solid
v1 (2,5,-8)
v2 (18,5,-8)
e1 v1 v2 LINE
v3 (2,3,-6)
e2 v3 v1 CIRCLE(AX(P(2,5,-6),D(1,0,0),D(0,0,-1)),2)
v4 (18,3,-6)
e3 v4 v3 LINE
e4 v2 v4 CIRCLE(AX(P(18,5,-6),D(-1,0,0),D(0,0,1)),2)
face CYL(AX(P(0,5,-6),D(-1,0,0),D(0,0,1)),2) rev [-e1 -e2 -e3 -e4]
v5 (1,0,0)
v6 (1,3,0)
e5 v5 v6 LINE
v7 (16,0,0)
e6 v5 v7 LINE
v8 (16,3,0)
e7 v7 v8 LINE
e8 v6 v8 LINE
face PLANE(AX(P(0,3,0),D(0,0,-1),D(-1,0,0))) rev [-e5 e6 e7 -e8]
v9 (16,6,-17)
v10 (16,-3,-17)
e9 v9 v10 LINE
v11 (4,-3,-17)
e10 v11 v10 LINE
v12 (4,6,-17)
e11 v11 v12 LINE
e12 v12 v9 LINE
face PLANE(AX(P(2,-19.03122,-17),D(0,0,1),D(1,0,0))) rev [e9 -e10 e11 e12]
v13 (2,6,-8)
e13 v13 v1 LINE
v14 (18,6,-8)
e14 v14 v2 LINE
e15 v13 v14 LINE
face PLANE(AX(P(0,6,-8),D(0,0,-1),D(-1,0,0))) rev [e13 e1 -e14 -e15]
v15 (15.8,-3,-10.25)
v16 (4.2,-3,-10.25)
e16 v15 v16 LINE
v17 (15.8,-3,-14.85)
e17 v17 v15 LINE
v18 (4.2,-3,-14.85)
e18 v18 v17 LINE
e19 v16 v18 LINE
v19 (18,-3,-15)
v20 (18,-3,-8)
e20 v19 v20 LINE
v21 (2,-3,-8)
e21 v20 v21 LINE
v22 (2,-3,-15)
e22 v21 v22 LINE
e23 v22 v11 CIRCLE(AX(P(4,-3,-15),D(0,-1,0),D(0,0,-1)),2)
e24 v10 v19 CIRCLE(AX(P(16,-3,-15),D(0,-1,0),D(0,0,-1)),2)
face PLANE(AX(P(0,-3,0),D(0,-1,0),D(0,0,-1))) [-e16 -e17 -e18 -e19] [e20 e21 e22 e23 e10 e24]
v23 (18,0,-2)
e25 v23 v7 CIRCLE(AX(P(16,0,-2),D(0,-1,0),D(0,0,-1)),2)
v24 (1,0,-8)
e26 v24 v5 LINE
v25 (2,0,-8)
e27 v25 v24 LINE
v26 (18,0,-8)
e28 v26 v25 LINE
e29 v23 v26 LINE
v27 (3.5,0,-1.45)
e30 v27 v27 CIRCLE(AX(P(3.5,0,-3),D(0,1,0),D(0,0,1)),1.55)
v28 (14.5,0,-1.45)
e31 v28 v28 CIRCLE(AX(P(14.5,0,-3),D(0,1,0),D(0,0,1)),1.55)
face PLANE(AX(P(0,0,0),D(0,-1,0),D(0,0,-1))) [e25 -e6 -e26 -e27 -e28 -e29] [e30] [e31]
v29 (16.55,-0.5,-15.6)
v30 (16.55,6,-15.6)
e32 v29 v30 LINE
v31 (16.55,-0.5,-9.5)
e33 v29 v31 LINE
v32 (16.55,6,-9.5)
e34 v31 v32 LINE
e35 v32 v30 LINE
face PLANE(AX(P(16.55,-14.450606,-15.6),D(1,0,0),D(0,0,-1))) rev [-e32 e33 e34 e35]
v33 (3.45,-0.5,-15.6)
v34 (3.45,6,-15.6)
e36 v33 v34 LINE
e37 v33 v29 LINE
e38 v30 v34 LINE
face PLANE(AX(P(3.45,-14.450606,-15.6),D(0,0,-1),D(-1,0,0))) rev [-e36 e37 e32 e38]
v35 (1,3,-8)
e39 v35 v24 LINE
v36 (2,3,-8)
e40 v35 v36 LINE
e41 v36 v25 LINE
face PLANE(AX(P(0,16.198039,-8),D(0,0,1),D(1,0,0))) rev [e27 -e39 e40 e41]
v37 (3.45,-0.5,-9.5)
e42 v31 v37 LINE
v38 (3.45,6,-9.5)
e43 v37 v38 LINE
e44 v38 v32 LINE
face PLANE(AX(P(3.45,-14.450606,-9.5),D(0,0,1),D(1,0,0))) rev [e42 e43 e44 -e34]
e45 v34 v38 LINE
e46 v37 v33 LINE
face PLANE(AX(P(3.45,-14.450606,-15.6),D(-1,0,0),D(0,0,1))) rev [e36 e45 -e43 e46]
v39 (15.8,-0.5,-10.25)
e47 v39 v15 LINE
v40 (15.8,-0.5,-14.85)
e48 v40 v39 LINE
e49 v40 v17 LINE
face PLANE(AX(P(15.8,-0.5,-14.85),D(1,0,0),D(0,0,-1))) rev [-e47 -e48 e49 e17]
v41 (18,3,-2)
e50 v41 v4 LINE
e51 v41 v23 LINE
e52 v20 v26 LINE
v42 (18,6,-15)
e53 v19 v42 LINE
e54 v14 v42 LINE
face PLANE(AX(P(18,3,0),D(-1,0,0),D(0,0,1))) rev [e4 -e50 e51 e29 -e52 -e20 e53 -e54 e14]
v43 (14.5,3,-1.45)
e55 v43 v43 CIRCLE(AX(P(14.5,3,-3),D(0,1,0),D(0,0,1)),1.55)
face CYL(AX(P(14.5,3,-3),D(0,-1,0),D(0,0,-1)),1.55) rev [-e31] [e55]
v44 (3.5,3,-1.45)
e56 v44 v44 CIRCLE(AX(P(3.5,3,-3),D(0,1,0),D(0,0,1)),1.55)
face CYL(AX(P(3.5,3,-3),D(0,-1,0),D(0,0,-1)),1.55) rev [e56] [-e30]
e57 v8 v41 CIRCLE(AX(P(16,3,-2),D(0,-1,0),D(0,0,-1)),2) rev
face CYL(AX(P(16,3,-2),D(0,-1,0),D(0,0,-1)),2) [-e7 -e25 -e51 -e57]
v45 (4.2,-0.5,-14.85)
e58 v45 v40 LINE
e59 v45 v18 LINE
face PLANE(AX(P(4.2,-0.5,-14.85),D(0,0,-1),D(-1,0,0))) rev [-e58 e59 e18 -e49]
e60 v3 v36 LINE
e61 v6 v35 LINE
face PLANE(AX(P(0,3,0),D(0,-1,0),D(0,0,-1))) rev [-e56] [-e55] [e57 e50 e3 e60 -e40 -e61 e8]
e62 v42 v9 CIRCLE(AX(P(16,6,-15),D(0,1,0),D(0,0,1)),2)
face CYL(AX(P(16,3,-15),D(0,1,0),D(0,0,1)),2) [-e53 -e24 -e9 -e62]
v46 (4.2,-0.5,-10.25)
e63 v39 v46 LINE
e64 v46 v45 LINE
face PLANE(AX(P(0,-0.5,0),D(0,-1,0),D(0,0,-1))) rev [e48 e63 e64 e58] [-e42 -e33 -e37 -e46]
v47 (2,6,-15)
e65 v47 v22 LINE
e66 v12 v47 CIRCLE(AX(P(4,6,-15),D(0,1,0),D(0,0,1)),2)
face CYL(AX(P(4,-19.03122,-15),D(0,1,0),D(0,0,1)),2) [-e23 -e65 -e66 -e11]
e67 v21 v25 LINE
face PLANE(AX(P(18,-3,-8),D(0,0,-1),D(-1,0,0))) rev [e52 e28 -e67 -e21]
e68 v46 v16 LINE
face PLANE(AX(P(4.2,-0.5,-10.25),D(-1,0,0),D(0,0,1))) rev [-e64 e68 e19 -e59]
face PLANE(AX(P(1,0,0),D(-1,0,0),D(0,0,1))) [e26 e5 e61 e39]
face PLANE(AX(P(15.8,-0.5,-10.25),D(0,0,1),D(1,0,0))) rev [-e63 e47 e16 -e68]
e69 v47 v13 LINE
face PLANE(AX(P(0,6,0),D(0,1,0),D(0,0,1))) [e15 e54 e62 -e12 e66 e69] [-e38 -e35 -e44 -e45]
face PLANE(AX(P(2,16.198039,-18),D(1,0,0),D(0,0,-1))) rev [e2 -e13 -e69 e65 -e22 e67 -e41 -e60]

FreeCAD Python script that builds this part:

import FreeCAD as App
import Part
import Sketcher

V = App.Vector
Q = App.Units.Quantity


def edges_at(feature, points):
    """Names of the edges that pass closest to the given points."""
    edges = feature.Shape.Edges
    near = lambda p: min(range(len(edges)), key=lambda i: edges[i].distToShape(Part.Vertex(*p))[0])
    return sorted({f"Edge{near(p) + 1}" for p in points})

doc = App.newDocument("Part")
body = doc.addObject("PartDesign::Body", "Body")

# Sketch on XZ plane
sketch1 = body.newObject("Sketcher::SketchObject", "Sketch")
sketch1.AttachmentSupport = (doc.getObject("XZ_Plane"), [""])
sketch1.MapMode = "FlatFace"
sketch1.addGeometry(Part.LineSegment(V(0, -18, 0), V(0, 0, 0)), False)
sketch1.addGeometry(Part.LineSegment(V(0, 0, 0), V(18, 0, 0)), False)
sketch1.addGeometry(Part.LineSegment(V(18, 0, 0), V(18, -18, 0)), False)
sketch1.addGeometry(Part.LineSegment(V(18, -18, 0), V(0, -18, 0)), False)
sketch1.addGeometry(Part.Circle(V(3.5, -3, 0), V(0, 0, 1), 1.55), False)
sketch1.addGeometry(Part.Circle(V(14.5, -3, 0), V(0, 0, 1), 1.55), False)
sketch1.addConstraint(Sketcher.Constraint("Coincident", 0, 2, 1, 1))
sketch1.addConstraint(Sketcher.Constraint("Coincident", 1, 2, 2, 1))
sketch1.addConstraint(Sketcher.Constraint("Coincident", 2, 2, 3, 1))
sketch1.addConstraint(Sketcher.Constraint("Coincident", 3, 2, 0, 1))
sketch1.addConstraint(Sketcher.Constraint("Vertical", 0))
sketch1.addConstraint(Sketcher.Constraint("Horizontal", 1))
sketch1.addConstraint(Sketcher.Constraint("Vertical", 2))
sketch1.addConstraint(Sketcher.Constraint("Horizontal", 3))
sketch1.addConstraint(Sketcher.Constraint("Coincident", 0, 2, -1, 1))
sketch1.addConstraint(Sketcher.Constraint("Equal", 4, 5))
sketch1.addConstraint(Sketcher.Constraint("Horizontal", 4, 3, 5, 3))
sketch1.addConstraint(Sketcher.Constraint("Equal", 3, 0))
sketch1.addConstraint(Sketcher.Constraint("Diameter", 4, Q("3.1 mm")))
sketch1.addConstraint(Sketcher.Constraint("DistanceX", 1, 1, 1, 2, Q("18 mm")))
sketch1.addConstraint(Sketcher.Constraint("DistanceY", 4, 3, -1, 1, Q("3 mm")))
sketch1.addConstraint(Sketcher.Constraint("DistanceX", 4, 3, 5, 3, Q("11 mm")))
sketch1.addConstraint(Sketcher.Constraint("DistanceX", -1, 1, 4, 3, Q("3.5 mm")))
pad1 = body.newObject("PartDesign::Pad", "Pad")
pad1.Profile = sketch1
pad1.Length = 3
pad1.Reversed = True

# Sketch on XZ plane
sketch2 = body.newObject("Sketcher::SketchObject", "Sketch001")
sketch2.AttachmentSupport = (doc.getObject("XZ_Plane"), [""])
sketch2.MapMode = "FlatFace"
sketch2.AttachmentOffset = App.Placement(V(0, 0, -3), App.Rotation())
sketch2.addGeometry(Part.LineSegment(V(0, -18, 0), V(0, -8, 0)), False)
sketch2.addGeometry(Part.LineSegment(V(0, -8, 0), V(18, -8, 0)), False)
sketch2.addGeometry(Part.LineSegment(V(18, -8, 0), V(18, -18, 0)), False)
sketch2.addGeometry(Part.LineSegment(V(18, -18, 0), V(0, -18, 0)), False)
sketch2.addConstraint(Sketcher.Constraint("Coincident", 0, 2, 1, 1))
sketch2.addConstraint(Sketcher.Constraint("Coincident", 1, 2, 2, 1))
sketch2.addConstraint(Sketcher.Constraint("Coincident", 2, 2, 3, 1))
sketch2.addConstraint(Sketcher.Constraint("Coincident", 3, 2, 0, 1))
sketch2.addConstraint(Sketcher.Constraint("Vertical", 0))
sketch2.addConstraint(Sketcher.Constraint("Horizontal", 1))
sketch2.addConstraint(Sketcher.Constraint("Vertical", 2))
sketch2.addConstraint(Sketcher.Constraint("Horizontal", 3))
sketch2.addConstraint(Sketcher.Constraint("PointOnObject", 0, 2, -2))
sketch2.addConstraint(Sketcher.Constraint("DistanceX", 1, 1, 1, 2, Q("18 mm")))
sketch2.addConstraint(Sketcher.Constraint("DistanceY", 0, 1, 0, 2, Q("10 mm")))
sketch2.addConstraint(Sketcher.Constraint("DistanceY", 0, 2, -1, 1, Q("8 mm")))
pad2 = body.newObject("PartDesign::Pad", "Pad001")
pad2.Profile = sketch2
pad2.Length = 3
pad2.Reversed = True

# Sketch on XZ plane
sketch3 = body.newObject("Sketcher::SketchObject", "Sketch002")
sketch3.AttachmentSupport = (doc.getObject("XZ_Plane"), [""])
sketch3.MapMode = "FlatFace"
sketch3.addGeometry(Part.LineSegment(V(0, -8, 0), V(0, -18, 0)), False)
sketch3.addGeometry(Part.LineSegment(V(0, -18, 0), V(2, -18, 0)), False)
sketch3.addGeometry(Part.LineSegment(V(2, -18, 0), V(2, -8, 0)), False)
sketch3.addGeometry(Part.LineSegment(V(2, -8, 0), V(0, -8, 0)), False)
sketch3.addConstraint(Sketcher.Constraint("Coincident", 0, 2, 1, 1))
sketch3.addConstraint(Sketcher.Constraint("Coincident", 1, 2, 2, 1))
sketch3.addConstraint(Sketcher.Constraint("Coincident", 2, 2, 3, 1))
sketch3.addConstraint(Sketcher.Constraint("Coincident", 3, 2, 0, 1))
sketch3.addConstraint(Sketcher.Constraint("Vertical", 0))
sketch3.addConstraint(Sketcher.Constraint("Horizontal", 1))
sketch3.addConstraint(Sketcher.Constraint("Vertical", 2))
sketch3.addConstraint(Sketcher.Constraint("Horizontal", 3))
sketch3.addConstraint(Sketcher.Constraint("PointOnObject", 0, 2, -2))
sketch3.addConstraint(Sketcher.Constraint("DistanceX", 1, 1, 1, 2, Q("2 mm")))
sketch3.addConstraint(Sketcher.Constraint("DistanceY", 0, 2, 0, 1, Q("10 mm")))
sketch3.addConstraint(Sketcher.Constraint("DistanceY", 0, 2, -1, 1, Q("18 mm")))
pocket1 = body.newObject("PartDesign::Pocket", "Pocket")
pocket1.Profile = sketch3
pocket1.Length = 6

# Sketch on XZ plane
sketch4 = body.newObject("Sketcher::SketchObject", "Sketch003")
sketch4.AttachmentSupport = (doc.getObject("XZ_Plane"), [""])
sketch4.MapMode = "FlatFace"
sketch4.AttachmentOffset = App.Placement(V(0, 0, -6), App.Rotation())
sketch4.addGeometry(Part.LineSegment(V(3.45, -15.6, 0), V(3.45, -9.5, 0)), False)
sketch4.addGeometry(Part.LineSegment(V(3.45, -9.5, 0), V(16.55, -9.5, 0)), False)
sketch4.addGeometry(Part.LineSegment(V(16.55, -9.5, 0), V(16.55, -15.6, 0)), False)
sketch4.addGeometry(Part.LineSegment(V(16.55, -15.6, 0), V(3.45, -15.6, 0)), False)
sketch4.addConstraint(Sketcher.Constraint("Coincident", 0, 2, 1, 1))
sketch4.addConstraint(Sketcher.Constraint("Coincident", 1, 2, 2, 1))
sketch4.addConstraint(Sketcher.Constraint("Coincident", 2, 2, 3, 1))
sketch4.addConstraint(Sketcher.Constraint("Coincident", 3, 2, 0, 1))
sketch4.addConstraint(Sketcher.Constraint("Vertical", 0))
sketch4.addConstraint(Sketcher.Constraint("Horizontal", 1))
sketch4.addConstraint(Sketcher.Constraint("Vertical", 2))
sketch4.addConstraint(Sketcher.Constraint("Horizontal", 3))
sketch4.addConstraint(Sketcher.Constraint("DistanceX", 1, 1, 1, 2, Q("13.1 mm")))
sketch4.addConstraint(Sketcher.Constraint("DistanceY", 0, 1, 0, 2, Q("6.1 mm")))
sketch4.addConstraint(Sketcher.Constraint("DistanceY", 0, 2, -1, 1, Q("9.5 mm")))
sketch4.addConstraint(Sketcher.Constraint("DistanceX", -1, 1, 0, 2, Q("3.45 mm")))
pocket2 = body.newObject("PartDesign::Pocket", "Pocket001")
pocket2.Profile = sketch4
pocket2.Length = 6
pocket2.Reversed = True

# Sketch on XZ plane
sketch5 = body.newObject("Sketcher::SketchObject", "Sketch004")
sketch5.AttachmentSupport = (doc.getObject("XZ_Plane"), [""])
sketch5.MapMode = "FlatFace"
sketch5.addGeometry(Part.LineSegment(V(2, -8, 0), V(2, -18, 0)), False)
sketch5.addGeometry(Part.LineSegment(V(2, -18, 0), V(18, -18, 0)), False)
sketch5.addGeometry(Part.LineSegment(V(18, -18, 0), V(18, -8, 0)), False)
sketch5.addGeometry(Part.LineSegment(V(18, -8, 0), V(2, -8, 0)), False)
sketch5.addGeometry(Part.LineSegment(V(16.55, -15.6, 0), V(3.45, -15.6, 0)), False)
sketch5.addGeometry(Part.LineSegment(V(3.45, -15.6, 0), V(3.45, -9.5, 0)), False)
sketch5.addGeometry(Part.LineSegment(V(3.45, -9.5, 0), V(16.55, -9.5, 0)), False)
sketch5.addGeometry(Part.LineSegment(V(16.55, -9.5, 0), V(16.55, -15.6, 0)), False)
sketch5.addConstraint(Sketcher.Constraint("Coincident", 0, 2, 1, 1))
sketch5.addConstraint(Sketcher.Constraint("Coincident", 1, 2, 2, 1))
sketch5.addConstraint(Sketcher.Constraint("Coincident", 2, 2, 3, 1))
sketch5.addConstraint(Sketcher.Constraint("Coincident", 3, 2, 0, 1))
sketch5.addConstraint(Sketcher.Constraint("Coincident", 4, 2, 5, 1))
sketch5.addConstraint(Sketcher.Constraint("Coincident", 5, 2, 6, 1))
sketch5.addConstraint(Sketcher.Constraint("Coincident", 6, 2, 7, 1))
sketch5.addConstraint(Sketcher.Constraint("Coincident", 7, 2, 4, 1))
sketch5.addConstraint(Sketcher.Constraint("Vertical", 0))
sketch5.addConstraint(Sketcher.Constraint("Horizontal", 1))
sketch5.addConstraint(Sketcher.Constraint("Vertical", 2))
sketch5.addConstraint(Sketcher.Constraint("Horizontal", 3))
sketch5.addConstraint(Sketcher.Constraint("Horizontal", 4))
sketch5.addConstraint(Sketcher.Constraint("Vertical", 5))
sketch5.addConstraint(Sketcher.Constraint("Horizontal", 6))
sketch5.addConstraint(Sketcher.Constraint("Vertical", 7))
sketch5.addConstraint(Sketcher.Constraint("DistanceX", 1, 1, 1, 2, Q("16 mm")))
sketch5.addConstraint(Sketcher.Constraint("DistanceY", 0, 2, 0, 1, Q("10 mm")))
sketch5.addConstraint(Sketcher.Constraint("DistanceX", 4, 2, 4, 1, Q("13.1 mm")))
sketch5.addConstraint(Sketcher.Constraint("DistanceY", 5, 1, 5, 2, Q("6.1 mm")))
sketch5.addConstraint(Sketcher.Constraint("DistanceX", -1, 1, 0, 2, Q("2 mm")))
sketch5.addConstraint(Sketcher.Constraint("DistanceY", 0, 2, -1, 1, Q("18 mm")))
sketch5.addConstraint(Sketcher.Constraint("DistanceY", 4, 2, -1, 1, Q("15.6 mm")))
sketch5.addConstraint(Sketcher.Constraint("DistanceX", -1, 1, 4, 2, Q("3.45 mm")))
pad3 = body.newObject("PartDesign::Pad", "Pad002")
pad3.Profile = sketch5
pad3.Length = 3

# Sketch on XZ plane
sketch6 = body.newObject("Sketcher::SketchObject", "Sketch005")
sketch6.AttachmentSupport = (doc.getObject("XZ_Plane"), [""])
sketch6.MapMode = "FlatFace"
sketch6.AttachmentOffset = App.Placement(V(0, 0, 3), App.Rotation())
sketch6.addGeometry(Part.LineSegment(V(3.45, -9.5, 0), V(3.45, -15.6, 0)), False)
sketch6.addGeometry(Part.LineSegment(V(3.45, -15.6, 0), V(16.55, -15.6, 0)), False)
sketch6.addGeometry(Part.LineSegment(V(16.55, -15.6, 0), V(16.55, -9.5, 0)), False)
sketch6.addGeometry(Part.LineSegment(V(16.55, -9.5, 0), V(3.45, -9.5, 0)), False)
sketch6.addGeometry(Part.LineSegment(V(15.8, -14.85, 0), V(4.2, -14.85, 0)), False)
sketch6.addGeometry(Part.LineSegment(V(4.2, -14.85, 0), V(4.2, -10.25, 0)), False)
sketch6.addGeometry(Part.LineSegment(V(4.2, -10.25, 0), V(15.8, -10.25, 0)), False)
sketch6.addGeometry(Part.LineSegment(V(15.8, -10.25, 0), V(15.8, -14.85, 0)), False)
sketch6.addConstraint(Sketcher.Constraint("Coincident", 0, 2, 1, 1))
sketch6.addConstraint(Sketcher.Constraint("Coincident", 1, 2, 2, 1))
sketch6.addConstraint(Sketcher.Constraint("Coincident", 2, 2, 3, 1))
sketch6.addConstraint(Sketcher.Constraint("Coincident", 3, 2, 0, 1))
sketch6.addConstraint(Sketcher.Constraint("Coincident", 4, 2, 5, 1))
sketch6.addConstraint(Sketcher.Constraint("Coincident", 5, 2, 6, 1))
sketch6.addConstraint(Sketcher.Constraint("Coincident", 6, 2, 7, 1))
sketch6.addConstraint(Sketcher.Constraint("Coincident", 7, 2, 4, 1))
sketch6.addConstraint(Sketcher.Constraint("Vertical", 0))
sketch6.addConstraint(Sketcher.Constraint("Horizontal", 1))
sketch6.addConstraint(Sketcher.Constraint("Vertical", 2))
sketch6.addConstraint(Sketcher.Constraint("Horizontal", 3))
sketch6.addConstraint(Sketcher.Constraint("Horizontal", 4))
sketch6.addConstraint(Sketcher.Constraint("Vertical", 5))
sketch6.addConstraint(Sketcher.Constraint("Horizontal", 6))
sketch6.addConstraint(Sketcher.Constraint("Vertical", 7))
sketch6.addConstraint(Sketcher.Constraint("DistanceX", 1, 1, 1, 2, Q("13.1 mm")))
sketch6.addConstraint(Sketcher.Constraint("DistanceX", 4, 2, 4, 1, Q("11.6 mm")))
sketch6.addConstraint(Sketcher.Constraint("DistanceY", 0, 2, 0, 1, Q("6.1 mm")))
sketch6.addConstraint(Sketcher.Constraint("DistanceY", 5, 1, 5, 2, Q("4.6 mm")))
sketch6.addConstraint(Sketcher.Constraint("DistanceY", 0, 2, -1, 1, Q("15.6 mm")))
sketch6.addConstraint(Sketcher.Constraint("DistanceX", -1, 1, 4, 2, Q("4.2 mm")))
sketch6.addConstraint(Sketcher.Constraint("DistanceX", -1, 1, 0, 2, Q("3.45 mm")))
sketch6.addConstraint(Sketcher.Constraint("DistanceY", 4, 2, -1, 1, Q("14.85 mm")))
pad4 = body.newObject("PartDesign::Pad", "Pad003")
pad4.Profile = sketch6
pad4.Length = 2.5
pad4.Reversed = True

# Sketch on XZ plane
sketch7 = body.newObject("Sketcher::SketchObject", "Sketch006")
sketch7.AttachmentSupport = (doc.getObject("XZ_Plane"), [""])
sketch7.MapMode = "FlatFace"
sketch7.AttachmentOffset = App.Placement(V(0, 0, -6), App.Rotation())
sketch7.addGeometry(Part.LineSegment(V(2, -18, 0), V(2, -17, 0)), False)
sketch7.addGeometry(Part.LineSegment(V(2, -17, 0), V(18, -17, 0)), False)
sketch7.addGeometry(Part.LineSegment(V(18, -17, 0), V(18, -18, 0)), False)
sketch7.addGeometry(Part.LineSegment(V(18, -18, 0), V(2, -18, 0)), False)
sketch7.addConstraint(Sketcher.Constraint("Coincident", 0, 2, 1, 1))
sketch7.addConstraint(Sketcher.Constraint("Coincident", 1, 2, 2, 1))
sketch7.addConstraint(Sketcher.Constraint("Coincident", 2, 2, 3, 1))
sketch7.addConstraint(Sketcher.Constraint("Coincident", 3, 2, 0, 1))
sketch7.addConstraint(Sketcher.Constraint("Vertical", 0))
sketch7.addConstraint(Sketcher.Constraint("Horizontal", 1))
sketch7.addConstraint(Sketcher.Constraint("Vertical", 2))
sketch7.addConstraint(Sketcher.Constraint("Horizontal", 3))
sketch7.addConstraint(Sketcher.Constraint("DistanceX", 1, 1, 1, 2, Q("16 mm")))
sketch7.addConstraint(Sketcher.Constraint("DistanceY", 0, 1, 0, 2, Q("1 mm")))
sketch7.addConstraint(Sketcher.Constraint("DistanceX", -1, 1, 0, 2, Q("2 mm")))
sketch7.addConstraint(Sketcher.Constraint("DistanceY", 0, 2, -1, 1, Q("17 mm")))
pocket3 = body.newObject("PartDesign::Pocket", "Pocket002")
pocket3.Profile = sketch7
pocket3.Length = 9
pocket3.Reversed = True
doc.recompute()

fillet = body.newObject("PartDesign::Fillet", "Fillet")
fillet.Base = (pocket3, edges_at(pocket3, [(18, 1.5, -17), (2, 1.5, -17), (18, 1.5, 0)]))
fillet.Radius = 2

# Sketch on YZ plane
sketch8 = body.newObject("Sketcher::SketchObject", "Sketch007")
sketch8.AttachmentSupport = (doc.getObject("YZ_Plane"), [""])
sketch8.MapMode = "FlatFace"
sketch8.addGeometry(Part.LineSegment(V(3, -8, 0), V(0, -8, 0)), False)
sketch8.addGeometry(Part.LineSegment(V(0, -8, 0), V(0, 0, 0)), False)
sketch8.addGeometry(Part.LineSegment(V(0, 0, 0), V(3, 0, 0)), False)
sketch8.addGeometry(Part.LineSegment(V(3, 0, 0), V(3, -8, 0)), False)
sketch8.addConstraint(Sketcher.Constraint("Coincident", 0, 2, 1, 1))
sketch8.addConstraint(Sketcher.Constraint("Coincident", 1, 2, 2, 1))
sketch8.addConstraint(Sketcher.Constraint("Coincident", 2, 2, 3, 1))
sketch8.addConstraint(Sketcher.Constraint("Coincident", 3, 2, 0, 1))
sketch8.addConstraint(Sketcher.Constraint("Horizontal", 0))
sketch8.addConstraint(Sketcher.Constraint("Vertical", 1))
sketch8.addConstraint(Sketcher.Constraint("Horizontal", 2))
sketch8.addConstraint(Sketcher.Constraint("Vertical", 3))
sketch8.addConstraint(Sketcher.Constraint("Coincident", 1, 2, -1, 1))
sketch8.addConstraint(Sketcher.Constraint("DistanceX", 0, 2, 0, 1, Q("3 mm")))
sketch8.addConstraint(Sketcher.Constraint("DistanceY", 1, 1, 1, 2, Q("8 mm")))
pocket4 = body.newObject("PartDesign::Pocket", "Pocket003")
pocket4.Profile = sketch8
pocket4.Length = 1
pocket4.Reversed = True
doc.recompute()

fillet2 = body.newObject("PartDesign::Fillet", "Fillet001")
fillet2.Base = (pocket4, edges_at(pocket4, [(10, 3, -8)]))
fillet2.Radius = 2

doc.recompute()
